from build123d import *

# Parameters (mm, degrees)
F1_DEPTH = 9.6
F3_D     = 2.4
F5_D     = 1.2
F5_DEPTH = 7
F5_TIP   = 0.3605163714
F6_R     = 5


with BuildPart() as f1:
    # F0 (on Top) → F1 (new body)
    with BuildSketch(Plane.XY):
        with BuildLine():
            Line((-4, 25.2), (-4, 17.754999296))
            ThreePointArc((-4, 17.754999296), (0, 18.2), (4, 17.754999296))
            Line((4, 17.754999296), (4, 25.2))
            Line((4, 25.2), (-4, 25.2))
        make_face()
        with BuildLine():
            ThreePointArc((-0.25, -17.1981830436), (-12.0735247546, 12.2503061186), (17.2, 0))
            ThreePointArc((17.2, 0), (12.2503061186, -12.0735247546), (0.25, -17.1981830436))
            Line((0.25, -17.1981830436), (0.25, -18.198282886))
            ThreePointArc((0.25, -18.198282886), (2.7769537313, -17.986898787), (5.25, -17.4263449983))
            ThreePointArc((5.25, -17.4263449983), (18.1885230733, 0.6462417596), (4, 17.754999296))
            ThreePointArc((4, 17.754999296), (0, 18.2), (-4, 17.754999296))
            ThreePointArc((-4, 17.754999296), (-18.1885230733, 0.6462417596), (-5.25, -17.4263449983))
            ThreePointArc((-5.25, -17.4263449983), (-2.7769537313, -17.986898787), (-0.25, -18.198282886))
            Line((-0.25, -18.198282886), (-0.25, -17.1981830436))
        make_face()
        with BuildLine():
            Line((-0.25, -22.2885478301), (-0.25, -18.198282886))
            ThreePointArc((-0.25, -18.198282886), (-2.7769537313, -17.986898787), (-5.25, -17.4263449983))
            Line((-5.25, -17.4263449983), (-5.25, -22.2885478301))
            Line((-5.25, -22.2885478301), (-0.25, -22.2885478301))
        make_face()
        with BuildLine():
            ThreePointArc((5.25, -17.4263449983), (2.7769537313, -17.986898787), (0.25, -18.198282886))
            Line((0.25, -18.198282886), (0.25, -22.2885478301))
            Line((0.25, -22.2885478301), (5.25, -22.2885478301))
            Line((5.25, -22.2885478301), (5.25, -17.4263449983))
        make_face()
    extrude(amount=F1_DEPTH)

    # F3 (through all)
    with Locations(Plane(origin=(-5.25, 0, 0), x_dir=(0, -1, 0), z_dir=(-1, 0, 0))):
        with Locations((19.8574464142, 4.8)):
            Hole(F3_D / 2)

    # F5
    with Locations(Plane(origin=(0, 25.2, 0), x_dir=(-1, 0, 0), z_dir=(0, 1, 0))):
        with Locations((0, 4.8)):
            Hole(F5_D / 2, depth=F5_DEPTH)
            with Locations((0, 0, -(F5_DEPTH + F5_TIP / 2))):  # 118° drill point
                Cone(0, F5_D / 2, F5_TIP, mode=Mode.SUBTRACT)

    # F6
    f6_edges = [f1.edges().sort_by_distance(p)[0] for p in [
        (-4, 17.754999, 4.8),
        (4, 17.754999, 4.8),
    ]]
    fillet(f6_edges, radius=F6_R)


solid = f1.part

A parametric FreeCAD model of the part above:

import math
import FreeCAD as App
import Part
import Sketcher
Q = App.Units.Quantity


def edges_at(feature, points):
    """Names of the edges that pass closest to the given points."""
    edges = feature.Shape.Edges
    near = lambda p: min(range(len(edges)), key=lambda i: edges[i].distToShape(Part.Vertex(*p))[0])
    return sorted({f"Edge{near(p) + 1}" for p in points})

doc = App.newDocument("Part")
body = doc.addObject("PartDesign::Body", "Body")

sketch1 = doc.addObject("Sketcher::SketchObject", "Sketch")
body.addObject(sketch1)
sketch1.AttachmentSupport = (doc.XY_Plane, [""])
sketch1.MapMode = "FlatFace"
sketch1.addGeometry(Part.LineSegment(App.Vector(-4, 25.2, 0), App.Vector(-4, 17.8, 0)), False)
sketch1.addGeometry(Part.ArcOfCircle(Part.Circle(App.Vector(0, 0, 0), App.Vector(0, 0, 1), 18.2), math.radians(103), math.radians(253)), False)
sketch1.addGeometry(Part.LineSegment(App.Vector(-5.2, -17.4, 0), App.Vector(-5.2, -22.3, 0)), False)
sketch1.addGeometry(Part.LineSegment(App.Vector(-5.2, -22.3, 0), App.Vector(-0.2, -22.3, 0)), False)
sketch1.addGeometry(Part.LineSegment(App.Vector(-0.2, -22.3, 0), App.Vector(-0.2, -17.2, 0)), False)
sketch1.addGeometry(Part.ArcOfCircle(Part.Circle(App.Vector(0, 0, 0), App.Vector(0, 0, 1), 17.2), math.radians(0), math.radians(269)), False)
sketch1.addGeometry(Part.ArcOfCircle(Part.Circle(App.Vector(0, 0, 0), App.Vector(0, 0, 1), 17.2), math.radians(-89), math.radians(0)), False)
sketch1.addGeometry(Part.LineSegment(App.Vector(0.2, -17.2, 0), App.Vector(0.2, -22.3, 0)), False)
sketch1.addGeometry(Part.LineSegment(App.Vector(0.2, -22.3, 0), App.Vector(5.2, -22.3, 0)), False)
sketch1.addGeometry(Part.LineSegment(App.Vector(5.2, -22.3, 0), App.Vector(5.2, -17.4, 0)), False)
sketch1.addGeometry(Part.ArcOfCircle(Part.Circle(App.Vector(0, 0, 0), App.Vector(0, 0, 1), 18.2), math.radians(-73), math.radians(77)), False)
sketch1.addGeometry(Part.LineSegment(App.Vector(4, 17.8, 0), App.Vector(4, 25.2, 0)), False)
sketch1.addGeometry(Part.LineSegment(App.Vector(4, 25.2, 0), App.Vector(-4, 25.2, 0)), False)
sketch1.addConstraint(Sketcher.Constraint("Coincident", 0, 2, 1, 1))
sketch1.addConstraint(Sketcher.Constraint("Coincident", 1, 2, 2, 1))
sketch1.addConstraint(Sketcher.Constraint("Coincident", 2, 2, 3, 1))
sketch1.addConstraint(Sketcher.Constraint("Coincident", 3, 2, 4, 1))
sketch1.addConstraint(Sketcher.Constraint("Coincident", 4, 2, 5, 2))
sketch1.addConstraint(Sketcher.Constraint("Tangent", 5, 1, 6, 2))
sketch1.addConstraint(Sketcher.Constraint("Coincident", 6, 1, 7, 1))
sketch1.addConstraint(Sketcher.Constraint("Coincident", 7, 2, 8, 1))
sketch1.addConstraint(Sketcher.Constraint("Coincident", 8, 2, 9, 1))
sketch1.addConstraint(Sketcher.Constraint("Coincident", 9, 2, 10, 1))
sketch1.addConstraint(Sketcher.Constraint("Coincident", 10, 2, 11, 1))
sketch1.addConstraint(Sketcher.Constraint("Coincident", 11, 2, 12, 1))
sketch1.addConstraint(Sketcher.Constraint("Coincident", 12, 2, 0, 1))
sketch1.addConstraint(Sketcher.Constraint("Vertical", 0))
sketch1.addConstraint(Sketcher.Constraint("Vertical", 2))
sketch1.addConstraint(Sketcher.Constraint("Horizontal", 3))
sketch1.addConstraint(Sketcher.Constraint("Vertical", 4))
sketch1.addConstraint(Sketcher.Constraint("Vertical", 7))
sketch1.addConstraint(Sketcher.Constraint("Horizontal", 8))
sketch1.addConstraint(Sketcher.Constraint("Vertical", 9))
sketch1.addConstraint(Sketcher.Constraint("Vertical", 11))
sketch1.addConstraint(Sketcher.Constraint("Horizontal", 12))
sketch1.addConstraint(Sketcher.Constraint("Coincident", 1, 3, -1, 1))
sketch1.addConstraint(Sketcher.Constraint("Coincident", 5, 3, -1, 1))
sketch1.addConstraint(Sketcher.Constraint("Coincident", 10, 3, -1, 1))
sketch1.addConstraint(Sketcher.Constraint("Equal", 5, 6))
sketch1.addConstraint(Sketcher.Constraint("Equal", 1, 10))
sketch1.addConstraint(Sketcher.Constraint("Symmetric", 3, 2, 7, 2, -2))
sketch1.addConstraint(Sketcher.Constraint("PointOnObject", 5, 1, -1))
sketch1.addConstraint(Sketcher.Constraint("Horizontal", 1, 2, 9, 2))
sketch1.addConstraint(Sketcher.Constraint("Horizontal", 0, 2, 10, 2))
sketch1.addConstraint(Sketcher.Constraint("Radius", 1, Q("18.2 mm")))
sketch1.addConstraint(Sketcher.Constraint("Radius", 5, Q("17.2 mm")))
sketch1.addConstraint(Sketcher.Constraint("DistanceX", 3, 1, 3, 2, Q("5 mm")))
sketch1.addConstraint(Sketcher.Constraint("DistanceX", 12, 2, 12, 1, Q("8 mm")))
sketch1.addConstraint(Sketcher.Constraint("DistanceY", -1, 1, 11, 2, Q("25.2 mm")))
sketch1.addConstraint(Sketcher.Constraint("DistanceX", 4, 2, 6, 1, Q("0.5 mm")))
sketch1.addConstraint(Sketcher.Constraint("DistanceY", 2, 2, 2, 1, Q("4.862203 mm")))
pad1 = doc.addObject("PartDesign::Pad", "Pad")
body.addObject(pad1)
pad1.Profile = sketch1
pad1.Length = 9.6

sketch2 = doc.addObject("Sketcher::SketchObject", "Sketch001")
body.addObject(sketch2)
sketch2.AttachmentSupport = (doc.YZ_Plane, [""])
sketch2.MapMode = "FlatFace"
sketch2.AttachmentOffset = App.Placement(App.Vector(0, 0, -5.25), App.Rotation())
sketch2.addGeometry(Part.Circle(App.Vector(-19.9, 4.8, 0), App.Vector(0, 0, 1), 1.2), False)
sketch2.addConstraint(Sketcher.Constraint("Diameter", 0, Q("2.4 mm")))
sketch2.addConstraint(Sketcher.Constraint("DistanceY", -1, 1, 0, 3, Q("4.8 mm")))
sketch2.addConstraint(Sketcher.Constraint("DistanceX", 0, 3, -1, 1, Q("19.857446 mm")))
doc.recompute()
hole = doc.addObject("PartDesign::Hole", "Hole")
body.addObject(hole)
hole.Profile = sketch2
hole.ThreadType = "None"
hole.Diameter = 2.4
hole.DepthType = "ThroughAll"
hole.Reversed = True

sketch3 = doc.addObject("Sketcher::SketchObject", "Sketch002")
body.addObject(sketch3)
sketch3.AttachmentSupport = (doc.XZ_Plane, [""])
sketch3.MapMode = "FlatFace"
sketch3.AttachmentOffset = App.Placement(App.Vector(0, 0, -25.2), App.Rotation())
sketch3.addGeometry(Part.Circle(App.Vector(0, 4.8, 0), App.Vector(0, 0, 1), 0.6), False)
sketch3.addConstraint(Sketcher.Constraint("PointOnObject", 0, 3, -2))
sketch3.addConstraint(Sketcher.Constraint("Diameter", 0, Q("1.2 mm")))
sketch3.addConstraint(Sketcher.Constraint("DistanceY", -1, 1, 0, 3, Q("4.8 mm")))
doc.recompute()
hole2 = doc.addObject("PartDesign::Hole", "Hole001")
body.addObject(hole2)
hole2.Profile = sketch3
hole2.ThreadType = "None"
hole2.Diameter = 1.2
hole2.DepthType = "Dimension"
hole2.Depth = 7
hole2.DrillPoint = "Angled"
hole2.DrillPointAngle = 118
hole2.Reversed = True
doc.recompute()

fillet = doc.addObject("PartDesign::Fillet", "Fillet")
body.addObject(fillet)
fillet.Base = (hole2, edges_at(hole2, [(-4, 17.755, 4.8), (4, 17.755, 4.8)]))
fillet.Radius = 5

doc.recompute()
